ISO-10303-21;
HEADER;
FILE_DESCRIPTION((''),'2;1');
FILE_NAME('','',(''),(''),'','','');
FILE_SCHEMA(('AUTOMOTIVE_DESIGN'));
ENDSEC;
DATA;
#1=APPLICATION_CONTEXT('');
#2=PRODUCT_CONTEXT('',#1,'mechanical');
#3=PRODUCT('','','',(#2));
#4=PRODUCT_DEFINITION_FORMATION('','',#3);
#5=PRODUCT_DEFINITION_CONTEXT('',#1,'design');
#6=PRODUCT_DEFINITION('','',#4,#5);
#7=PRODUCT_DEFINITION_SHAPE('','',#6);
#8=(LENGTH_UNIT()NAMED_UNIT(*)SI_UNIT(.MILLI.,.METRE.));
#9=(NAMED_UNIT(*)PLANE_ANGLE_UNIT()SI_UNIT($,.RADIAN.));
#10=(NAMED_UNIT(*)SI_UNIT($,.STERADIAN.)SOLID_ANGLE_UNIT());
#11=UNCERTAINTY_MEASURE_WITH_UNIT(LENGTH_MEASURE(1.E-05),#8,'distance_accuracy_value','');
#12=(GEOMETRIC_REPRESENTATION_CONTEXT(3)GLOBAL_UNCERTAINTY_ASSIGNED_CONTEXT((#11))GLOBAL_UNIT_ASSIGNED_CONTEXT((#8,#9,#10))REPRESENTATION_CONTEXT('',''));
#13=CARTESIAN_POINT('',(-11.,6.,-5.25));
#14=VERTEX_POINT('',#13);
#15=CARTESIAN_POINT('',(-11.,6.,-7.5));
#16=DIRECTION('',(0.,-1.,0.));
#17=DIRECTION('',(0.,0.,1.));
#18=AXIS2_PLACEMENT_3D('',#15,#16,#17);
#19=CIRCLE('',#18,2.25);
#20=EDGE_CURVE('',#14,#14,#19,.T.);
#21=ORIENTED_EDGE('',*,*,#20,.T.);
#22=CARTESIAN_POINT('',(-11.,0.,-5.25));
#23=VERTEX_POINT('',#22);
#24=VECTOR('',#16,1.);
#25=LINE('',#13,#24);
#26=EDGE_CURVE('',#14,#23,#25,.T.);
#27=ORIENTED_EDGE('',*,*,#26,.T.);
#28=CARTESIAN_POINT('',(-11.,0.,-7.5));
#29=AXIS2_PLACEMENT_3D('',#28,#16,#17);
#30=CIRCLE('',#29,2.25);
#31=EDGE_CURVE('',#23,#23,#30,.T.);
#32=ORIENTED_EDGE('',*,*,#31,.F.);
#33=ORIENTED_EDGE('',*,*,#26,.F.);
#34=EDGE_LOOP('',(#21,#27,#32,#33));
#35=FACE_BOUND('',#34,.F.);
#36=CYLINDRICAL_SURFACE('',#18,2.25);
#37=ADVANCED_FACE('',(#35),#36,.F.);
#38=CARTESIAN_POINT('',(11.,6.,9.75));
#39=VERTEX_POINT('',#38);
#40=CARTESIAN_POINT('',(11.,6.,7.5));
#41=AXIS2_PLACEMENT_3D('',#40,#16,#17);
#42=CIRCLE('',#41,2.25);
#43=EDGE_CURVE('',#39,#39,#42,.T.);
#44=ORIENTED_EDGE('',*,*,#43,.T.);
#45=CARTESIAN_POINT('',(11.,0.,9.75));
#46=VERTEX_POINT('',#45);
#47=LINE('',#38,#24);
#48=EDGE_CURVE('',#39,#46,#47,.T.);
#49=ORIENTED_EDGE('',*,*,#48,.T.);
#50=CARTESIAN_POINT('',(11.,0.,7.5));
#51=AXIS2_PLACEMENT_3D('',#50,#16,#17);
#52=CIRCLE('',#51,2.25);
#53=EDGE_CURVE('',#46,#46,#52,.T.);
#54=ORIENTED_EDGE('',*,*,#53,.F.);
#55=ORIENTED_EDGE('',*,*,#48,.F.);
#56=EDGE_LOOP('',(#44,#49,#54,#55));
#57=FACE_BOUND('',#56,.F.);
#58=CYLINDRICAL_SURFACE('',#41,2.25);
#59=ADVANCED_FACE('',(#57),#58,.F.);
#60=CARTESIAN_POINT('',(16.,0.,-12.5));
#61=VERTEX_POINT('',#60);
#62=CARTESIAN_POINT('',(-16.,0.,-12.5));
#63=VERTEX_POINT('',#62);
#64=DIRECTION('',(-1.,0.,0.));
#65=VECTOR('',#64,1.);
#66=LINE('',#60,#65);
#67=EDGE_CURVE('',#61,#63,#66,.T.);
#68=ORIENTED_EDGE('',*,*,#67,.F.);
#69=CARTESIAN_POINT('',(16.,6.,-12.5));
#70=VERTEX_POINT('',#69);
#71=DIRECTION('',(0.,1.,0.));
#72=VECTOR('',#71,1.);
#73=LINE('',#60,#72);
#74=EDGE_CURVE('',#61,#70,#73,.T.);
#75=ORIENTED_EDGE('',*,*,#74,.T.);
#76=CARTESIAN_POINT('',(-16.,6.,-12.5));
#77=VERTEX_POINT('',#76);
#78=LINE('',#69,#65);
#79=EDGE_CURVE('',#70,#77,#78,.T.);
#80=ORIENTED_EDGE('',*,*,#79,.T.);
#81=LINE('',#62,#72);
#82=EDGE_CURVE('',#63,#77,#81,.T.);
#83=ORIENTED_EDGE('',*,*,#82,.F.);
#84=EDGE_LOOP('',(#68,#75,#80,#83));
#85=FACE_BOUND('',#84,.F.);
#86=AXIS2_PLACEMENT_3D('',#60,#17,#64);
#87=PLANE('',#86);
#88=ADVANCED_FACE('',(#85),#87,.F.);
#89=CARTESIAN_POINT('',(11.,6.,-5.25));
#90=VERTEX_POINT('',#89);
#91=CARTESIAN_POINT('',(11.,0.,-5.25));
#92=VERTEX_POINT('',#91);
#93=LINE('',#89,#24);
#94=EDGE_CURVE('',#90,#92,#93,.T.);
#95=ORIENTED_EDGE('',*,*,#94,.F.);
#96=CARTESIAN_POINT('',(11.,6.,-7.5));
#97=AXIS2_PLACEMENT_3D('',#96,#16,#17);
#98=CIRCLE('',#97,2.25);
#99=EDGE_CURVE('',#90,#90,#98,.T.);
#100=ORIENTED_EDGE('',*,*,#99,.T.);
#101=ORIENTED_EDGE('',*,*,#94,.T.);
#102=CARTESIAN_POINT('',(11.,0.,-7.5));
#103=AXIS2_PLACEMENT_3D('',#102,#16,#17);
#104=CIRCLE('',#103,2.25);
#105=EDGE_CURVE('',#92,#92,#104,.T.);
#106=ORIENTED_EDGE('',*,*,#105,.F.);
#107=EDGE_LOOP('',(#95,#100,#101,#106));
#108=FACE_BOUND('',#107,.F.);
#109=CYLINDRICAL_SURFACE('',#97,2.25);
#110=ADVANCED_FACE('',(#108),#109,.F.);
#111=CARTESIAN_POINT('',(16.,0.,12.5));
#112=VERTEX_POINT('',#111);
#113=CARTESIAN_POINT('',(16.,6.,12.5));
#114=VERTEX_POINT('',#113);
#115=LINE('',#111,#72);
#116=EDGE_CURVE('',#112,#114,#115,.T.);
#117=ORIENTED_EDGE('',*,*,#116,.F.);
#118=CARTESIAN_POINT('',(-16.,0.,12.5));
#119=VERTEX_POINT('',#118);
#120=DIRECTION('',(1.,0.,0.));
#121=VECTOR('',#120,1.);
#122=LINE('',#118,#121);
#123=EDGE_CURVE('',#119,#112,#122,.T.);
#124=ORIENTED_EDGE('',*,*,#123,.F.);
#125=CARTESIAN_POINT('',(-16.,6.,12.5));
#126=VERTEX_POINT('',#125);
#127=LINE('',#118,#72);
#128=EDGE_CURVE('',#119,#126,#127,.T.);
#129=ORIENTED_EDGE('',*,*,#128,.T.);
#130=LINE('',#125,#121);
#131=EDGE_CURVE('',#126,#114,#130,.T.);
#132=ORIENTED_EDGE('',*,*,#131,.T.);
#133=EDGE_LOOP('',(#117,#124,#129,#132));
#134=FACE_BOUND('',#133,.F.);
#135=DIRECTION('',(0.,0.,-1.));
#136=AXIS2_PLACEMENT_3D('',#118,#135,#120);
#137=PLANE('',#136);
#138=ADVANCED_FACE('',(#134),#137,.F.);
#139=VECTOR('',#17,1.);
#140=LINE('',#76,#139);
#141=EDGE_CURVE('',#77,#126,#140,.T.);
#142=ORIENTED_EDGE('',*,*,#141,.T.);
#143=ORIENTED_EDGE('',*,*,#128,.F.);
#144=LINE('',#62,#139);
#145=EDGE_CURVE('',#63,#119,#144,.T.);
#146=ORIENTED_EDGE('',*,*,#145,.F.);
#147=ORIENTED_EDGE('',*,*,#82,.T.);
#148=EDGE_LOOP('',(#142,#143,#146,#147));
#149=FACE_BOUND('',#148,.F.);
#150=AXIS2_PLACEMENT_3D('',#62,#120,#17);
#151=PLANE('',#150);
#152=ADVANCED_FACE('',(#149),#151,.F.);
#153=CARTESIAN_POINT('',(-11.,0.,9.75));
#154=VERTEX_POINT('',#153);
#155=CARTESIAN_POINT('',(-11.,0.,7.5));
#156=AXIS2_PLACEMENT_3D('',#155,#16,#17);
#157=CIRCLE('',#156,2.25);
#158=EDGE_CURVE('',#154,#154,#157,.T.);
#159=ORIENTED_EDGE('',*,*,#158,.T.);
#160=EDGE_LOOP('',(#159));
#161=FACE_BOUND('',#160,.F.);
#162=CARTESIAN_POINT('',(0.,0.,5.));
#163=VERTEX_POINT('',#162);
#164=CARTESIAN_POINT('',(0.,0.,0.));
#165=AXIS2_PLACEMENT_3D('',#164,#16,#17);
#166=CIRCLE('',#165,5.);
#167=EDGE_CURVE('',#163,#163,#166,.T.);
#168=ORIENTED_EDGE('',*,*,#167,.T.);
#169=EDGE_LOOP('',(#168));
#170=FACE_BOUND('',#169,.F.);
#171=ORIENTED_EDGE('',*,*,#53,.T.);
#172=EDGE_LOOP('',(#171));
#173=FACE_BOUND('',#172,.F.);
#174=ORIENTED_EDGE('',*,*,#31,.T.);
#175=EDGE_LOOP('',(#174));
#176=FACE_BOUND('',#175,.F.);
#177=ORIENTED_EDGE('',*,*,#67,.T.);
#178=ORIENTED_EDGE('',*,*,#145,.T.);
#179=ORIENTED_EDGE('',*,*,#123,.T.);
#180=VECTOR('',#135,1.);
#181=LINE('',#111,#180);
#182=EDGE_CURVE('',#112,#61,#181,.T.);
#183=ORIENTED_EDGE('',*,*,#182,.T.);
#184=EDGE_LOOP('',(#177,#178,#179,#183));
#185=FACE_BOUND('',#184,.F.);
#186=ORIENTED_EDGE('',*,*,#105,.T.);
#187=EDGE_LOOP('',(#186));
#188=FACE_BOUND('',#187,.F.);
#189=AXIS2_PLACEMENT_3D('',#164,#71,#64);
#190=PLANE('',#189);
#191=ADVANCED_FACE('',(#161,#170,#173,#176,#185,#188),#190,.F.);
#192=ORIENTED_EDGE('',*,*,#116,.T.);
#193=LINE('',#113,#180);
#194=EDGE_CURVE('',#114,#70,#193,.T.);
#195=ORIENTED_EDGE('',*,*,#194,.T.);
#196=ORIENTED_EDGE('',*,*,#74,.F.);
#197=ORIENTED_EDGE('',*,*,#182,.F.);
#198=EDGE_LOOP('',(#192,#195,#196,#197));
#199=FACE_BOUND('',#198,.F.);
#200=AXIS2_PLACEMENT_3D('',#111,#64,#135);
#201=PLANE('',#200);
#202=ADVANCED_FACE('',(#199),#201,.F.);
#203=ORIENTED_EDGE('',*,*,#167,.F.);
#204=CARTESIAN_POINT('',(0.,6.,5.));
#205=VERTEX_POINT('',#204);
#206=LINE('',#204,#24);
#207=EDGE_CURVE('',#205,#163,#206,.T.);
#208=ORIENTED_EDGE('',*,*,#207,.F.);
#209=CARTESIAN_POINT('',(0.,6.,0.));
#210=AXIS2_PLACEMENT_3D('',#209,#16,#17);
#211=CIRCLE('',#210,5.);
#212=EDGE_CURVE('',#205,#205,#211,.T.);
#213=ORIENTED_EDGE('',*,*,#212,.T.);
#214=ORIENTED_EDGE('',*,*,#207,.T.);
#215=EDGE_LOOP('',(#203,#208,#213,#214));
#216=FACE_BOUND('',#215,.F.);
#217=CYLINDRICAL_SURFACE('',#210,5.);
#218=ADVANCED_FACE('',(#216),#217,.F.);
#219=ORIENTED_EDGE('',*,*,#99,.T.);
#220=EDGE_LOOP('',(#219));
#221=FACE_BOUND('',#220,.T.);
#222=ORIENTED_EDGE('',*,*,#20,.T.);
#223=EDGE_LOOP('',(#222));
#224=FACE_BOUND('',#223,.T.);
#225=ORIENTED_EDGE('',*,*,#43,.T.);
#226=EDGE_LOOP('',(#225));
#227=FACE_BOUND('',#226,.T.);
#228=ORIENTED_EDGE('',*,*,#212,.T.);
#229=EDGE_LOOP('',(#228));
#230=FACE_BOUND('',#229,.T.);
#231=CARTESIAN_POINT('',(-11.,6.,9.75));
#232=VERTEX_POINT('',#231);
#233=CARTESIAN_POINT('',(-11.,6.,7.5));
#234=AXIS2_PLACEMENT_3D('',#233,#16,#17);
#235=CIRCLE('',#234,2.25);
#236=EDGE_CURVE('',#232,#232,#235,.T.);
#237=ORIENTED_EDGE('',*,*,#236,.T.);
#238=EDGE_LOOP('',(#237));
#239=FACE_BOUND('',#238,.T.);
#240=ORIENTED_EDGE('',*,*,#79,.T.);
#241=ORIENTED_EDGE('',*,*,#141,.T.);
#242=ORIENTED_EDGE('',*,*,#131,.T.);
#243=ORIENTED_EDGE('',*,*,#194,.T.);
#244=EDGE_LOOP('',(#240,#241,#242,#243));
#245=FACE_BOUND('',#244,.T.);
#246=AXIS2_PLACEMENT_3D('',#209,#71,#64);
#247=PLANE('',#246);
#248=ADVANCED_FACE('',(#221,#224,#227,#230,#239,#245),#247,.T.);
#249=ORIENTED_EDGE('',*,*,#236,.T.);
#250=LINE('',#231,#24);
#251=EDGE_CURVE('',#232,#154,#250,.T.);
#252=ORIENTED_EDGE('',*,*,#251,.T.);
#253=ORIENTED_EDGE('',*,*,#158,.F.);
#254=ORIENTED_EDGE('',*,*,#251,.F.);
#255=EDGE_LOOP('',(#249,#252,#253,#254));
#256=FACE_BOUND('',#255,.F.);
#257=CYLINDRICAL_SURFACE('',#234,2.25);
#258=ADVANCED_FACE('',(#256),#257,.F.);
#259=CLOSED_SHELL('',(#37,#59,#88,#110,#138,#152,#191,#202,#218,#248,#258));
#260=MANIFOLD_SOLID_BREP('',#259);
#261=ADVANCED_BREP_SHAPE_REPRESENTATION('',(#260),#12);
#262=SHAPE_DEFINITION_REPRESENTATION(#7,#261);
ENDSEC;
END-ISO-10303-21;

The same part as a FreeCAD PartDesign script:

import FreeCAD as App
import Part
import Sketcher
Q = App.Units.Quantity

doc = App.newDocument("Part")
body = doc.addObject("PartDesign::Body", "Body")

# Sketch on XZ plane
sketch1 = doc.addObject("Sketcher::SketchObject", "Sketch")
body.addObject(sketch1)
sketch1.AttachmentSupport = (doc.XZ_Plane, [""])
sketch1.MapMode = "FlatFace"
sketch1.addGeometry([
    Part.LineSegment(App.Vector(-16, 12, 0), App.Vector(16, 12, 0)),
    Part.LineSegment(App.Vector(16, 12, 0), App.Vector(16, -12, 0)),
    Part.LineSegment(App.Vector(16, -12, 0), App.Vector(-16, -12, 0)),
    Part.LineSegment(App.Vector(-16, -12, 0), App.Vector(-16, 12, 0)),
], False)
sketch1.addConstraint([
    Sketcher.Constraint("Coincident", 0, 2, 1, 1),
    Sketcher.Constraint("Coincident", 1, 2, 2, 1),
    Sketcher.Constraint("Coincident", 2, 2, 3, 1),
    Sketcher.Constraint("Coincident", 3, 2, 0, 1),
    Sketcher.Constraint("Horizontal", 0),
    Sketcher.Constraint("Vertical", 1),
    Sketcher.Constraint("Horizontal", 2),
    Sketcher.Constraint("Vertical", 3),
    Sketcher.Constraint("Symmetric", 0, 2, 2, 2, -1, 1),
    Sketcher.Constraint("DistanceX", 0, 1, 0, 2, Q("32 mm")),
    Sketcher.Constraint("DistanceY", 1, 2, 1, 1, Q("25 mm")),
])
pad1 = doc.addObject("PartDesign::Pad", "Pad")
body.addObject(pad1)
pad1.Profile = sketch1
pad1.Length = 6
pad1.Reversed = True

# Sketch on XZ plane
sketch2 = doc.addObject("Sketcher::SketchObject", "Sketch001")
body.addObject(sketch2)
sketch2.AttachmentSupport = (doc.XZ_Plane, [""])
sketch2.MapMode = "FlatFace"
sketch2.AttachmentOffset = App.Placement(App.Vector(0, 0, -6), App.Rotation())
sketch2.addGeometry(Part.Circle(App.Vector(0, 0, 0), App.Vector(0, 0, 1), 5), False)
sketch2.addConstraint([
    Sketcher.Constraint("Coincident", 0, 3, -1, 1),
    Sketcher.Constraint("Diameter", 0, Q("10 mm")),
])
doc.recompute()
hole = doc.addObject("PartDesign::Hole", "Hole")
body.addObject(hole)
hole.Profile = sketch2
hole.ThreadType = "None"
hole.Diameter = 10
hole.DepthType = "Dimension"
hole.Depth = 6
hole.DrillPoint = "Flat"
hole.Reversed = True

# Sketch on XZ plane
sketch3 = doc.addObject("Sketcher::SketchObject", "Sketch002")
body.addObject(sketch3)
sketch3.AttachmentSupport = (doc.XZ_Plane, [""])
sketch3.MapMode = "FlatFace"
sketch3.AttachmentOffset = App.Placement(App.Vector(0, 0, -6), App.Rotation())
sketch3.addGeometry(Part.Circle(App.Vector(-11, -7.5, 0), App.Vector(0, 0, 1), 2.2), False)
sketch3.addConstraint([
    Sketcher.Constraint("Diameter", 0, Q("4.5 mm")),
    Sketcher.Constraint("DistanceX", 0, 3, -1, 1, Q("11 mm")),
    Sketcher.Constraint("DistanceY", 0, 3, -1, 1, Q("7.5 mm")),
])
doc.recompute()
hole2 = doc.addObject("PartDesign::Hole", "Hole001")
body.addObject(hole2)
hole2.Profile = sketch3
hole2.ThreadType = "None"
hole2.Diameter = 4.5
hole2.DepthType = "Dimension"
hole2.Depth = 6
hole2.DrillPoint = "Flat"
hole2.Reversed = True

# Sketch on XZ plane
sketch4 = doc.addObject("Sketcher::SketchObject", "Sketch003")
body.addObject(sketch4)
sketch4.AttachmentSupport = (doc.XZ_Plane, [""])
sketch4.MapMode = "FlatFace"
sketch4.AttachmentOffset = App.Placement(App.Vector(0, 0, -6), App.Rotation())
sketch4.addGeometry(Part.Circle(App.Vector(11, 7.5, 0), App.Vector(0, 0, 1), 2.2), False)
sketch4.addConstraint([
    Sketcher.Constraint("Diameter", 0, Q("4.5 mm")),
    Sketcher.Constraint("DistanceX", -1, 1, 0, 3, Q("11 mm")),
    Sketcher.Constraint("DistanceY", -1, 1, 0, 3, Q("7.5 mm")),
])
doc.recompute()
hole3 = doc.addObject("PartDesign::Hole", "Hole002")
body.addObject(hole3)
hole3.Profile = sketch4
hole3.ThreadType = "None"
hole3.Diameter = 4.5
hole3.DepthType = "Dimension"
hole3.Depth = 6
hole3.DrillPoint = "Flat"
hole3.Reversed = True

# Sketch on XZ plane
sketch5 = doc.addObject("Sketcher::SketchObject", "Sketch004")
body.addObject(sketch5)
sketch5.AttachmentSupport = (doc.XZ_Plane, [""])
sketch5.MapMode = "FlatFace"
sketch5.AttachmentOffset = App.Placement(App.Vector(0, 0, -6), App.Rotation())
sketch5.addGeometry(Part.Circle(App.Vector(11, -7.5, 0), App.Vector(0, 0, 1), 2.2), False)
sketch5.addConstraint([
    Sketcher.Constraint("Diameter", 0, Q("4.5 mm")),
    Sketcher.Constraint("DistanceX", -1, 1, 0, 3, Q("11 mm")),
    Sketcher.Constraint("DistanceY", 0, 3, -1, 1, Q("7.5 mm")),
])
doc.recompute()
hole4 = doc.addObject("PartDesign::Hole", "Hole003")
body.addObject(hole4)
hole4.Profile = sketch5
hole4.ThreadType = "None"
hole4.Diameter = 4.5
hole4.DepthType = "Dimension"
hole4.Depth = 6
hole4.DrillPoint = "Flat"
hole4.Reversed = True

# Sketch on XZ plane
sketch6 = doc.addObject("Sketcher::SketchObject", "Sketch005")
body.addObject(sketch6)
sketch6.AttachmentSupport = (doc.XZ_Plane, [""])
sketch6.MapMode = "FlatFace"
sketch6.AttachmentOffset = App.Placement(App.Vector(0, 0, -6), App.Rotation())
sketch6.addGeometry(Part.Circle(App.Vector(-11, 7.5, 0), App.Vector(0, 0, 1), 2.2), False)
sketch6.addConstraint([
    Sketcher.Constraint("Diameter", 0, Q("4.5 mm")),
    Sketcher.Constraint("DistanceX", 0, 3, -1, 1, Q("11 mm")),
    Sketcher.Constraint("DistanceY", -1, 1, 0, 3, Q("7.5 mm")),
])
doc.recompute()
hole5 = doc.addObject("PartDesign::Hole", "Hole004")
body.addObject(hole5)
hole5.Profile = sketch6
hole5.ThreadType = "None"
hole5.Diameter = 4.5
hole5.DepthType = "Dimension"
hole5.Depth = 6
hole5.DrillPoint = "Flat"
hole5.Reversed = True

doc.recompute()
